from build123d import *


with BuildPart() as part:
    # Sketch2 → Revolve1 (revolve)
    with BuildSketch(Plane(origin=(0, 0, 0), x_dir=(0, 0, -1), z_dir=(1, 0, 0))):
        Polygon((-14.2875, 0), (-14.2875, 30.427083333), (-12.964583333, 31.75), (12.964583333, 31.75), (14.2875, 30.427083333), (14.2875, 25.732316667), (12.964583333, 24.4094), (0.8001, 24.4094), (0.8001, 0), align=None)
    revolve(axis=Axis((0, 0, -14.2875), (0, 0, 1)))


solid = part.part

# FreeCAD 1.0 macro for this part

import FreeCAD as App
import Part
import Sketcher
Q = App.Units.Quantity


def add_polygon(sketch, points):
    """Adds a closed chain of lines whose ends are joined by coincident constraints."""
    first, n = sketch.GeometryCount, len(points)
    for a, b in zip(points, points[1:] + points[:1]):
        sketch.addGeometry(Part.LineSegment(App.Vector(*a, 0), App.Vector(*b, 0)), False)
    for i in range(n):
        sketch.addConstraint(Sketcher.Constraint("Coincident", first + i, 2, first + (i + 1) % n, 1))

doc = App.newDocument("Part")
body = doc.addObject("PartDesign::Body", "Body")

# Sketch on YZ plane
sketch1 = body.newObject("Sketcher::SketchObject", "Sketch")
sketch1.AttachmentSupport = (doc.getObject("YZ_Plane"), [""])
sketch1.MapMode = "FlatFace"
add_polygon(sketch1, [(30.4, 14.3), (0, 14.3), (0, -0.8), (24.4, -0.8), (24.4, -13), (25.7, -14.3), (30.4, -14.3), (31.8, -13), (31.8, 13)])  # lines 0-8
sketch1.addConstraint([
    Sketcher.Constraint("Horizontal", 0),
    Sketcher.Constraint("Vertical", 1),
    Sketcher.Constraint("Horizontal", 2),
    Sketcher.Constraint("Vertical", 3),
    Sketcher.Constraint("Horizontal", 5),
    Sketcher.Constraint("Vertical", 7),
    Sketcher.Constraint("Symmetric", 5, 2, 8, 2, -1),
    Sketcher.Constraint("PointOnObject", 0, 2, -2),
    Sketcher.Constraint("Perpendicular", 4, 6),
    Sketcher.Constraint("Perpendicular", 6, 8),
    Sketcher.Constraint("Horizontal", 3, 2, 6, 2),
    Sketcher.Constraint("Equal", 4, 6),
    Sketcher.Constraint("DistanceX", 2, 1, 2, 2, Q("0.961 in")),
    Sketcher.Constraint("DistanceY", 1, 2, 1, 1, Q("0.594 in")),
    Sketcher.Constraint("DistanceX", -1, 1, 6, 2, Q("1.25 in")),
    Sketcher.Constraint("DistanceY", -1, 1, 0, 2, Q("0.5625 in")),
    Sketcher.Constraint("DistanceX", 0, 2, 0, 1, 30.427083),
])
revolution = body.newObject("PartDesign::Revolution", "Revolution")
revolution.Profile = sketch1
revolution.ReferenceAxis = (sketch1, ["V_Axis"])
revolution.Angle = 360

doc.recompute()
